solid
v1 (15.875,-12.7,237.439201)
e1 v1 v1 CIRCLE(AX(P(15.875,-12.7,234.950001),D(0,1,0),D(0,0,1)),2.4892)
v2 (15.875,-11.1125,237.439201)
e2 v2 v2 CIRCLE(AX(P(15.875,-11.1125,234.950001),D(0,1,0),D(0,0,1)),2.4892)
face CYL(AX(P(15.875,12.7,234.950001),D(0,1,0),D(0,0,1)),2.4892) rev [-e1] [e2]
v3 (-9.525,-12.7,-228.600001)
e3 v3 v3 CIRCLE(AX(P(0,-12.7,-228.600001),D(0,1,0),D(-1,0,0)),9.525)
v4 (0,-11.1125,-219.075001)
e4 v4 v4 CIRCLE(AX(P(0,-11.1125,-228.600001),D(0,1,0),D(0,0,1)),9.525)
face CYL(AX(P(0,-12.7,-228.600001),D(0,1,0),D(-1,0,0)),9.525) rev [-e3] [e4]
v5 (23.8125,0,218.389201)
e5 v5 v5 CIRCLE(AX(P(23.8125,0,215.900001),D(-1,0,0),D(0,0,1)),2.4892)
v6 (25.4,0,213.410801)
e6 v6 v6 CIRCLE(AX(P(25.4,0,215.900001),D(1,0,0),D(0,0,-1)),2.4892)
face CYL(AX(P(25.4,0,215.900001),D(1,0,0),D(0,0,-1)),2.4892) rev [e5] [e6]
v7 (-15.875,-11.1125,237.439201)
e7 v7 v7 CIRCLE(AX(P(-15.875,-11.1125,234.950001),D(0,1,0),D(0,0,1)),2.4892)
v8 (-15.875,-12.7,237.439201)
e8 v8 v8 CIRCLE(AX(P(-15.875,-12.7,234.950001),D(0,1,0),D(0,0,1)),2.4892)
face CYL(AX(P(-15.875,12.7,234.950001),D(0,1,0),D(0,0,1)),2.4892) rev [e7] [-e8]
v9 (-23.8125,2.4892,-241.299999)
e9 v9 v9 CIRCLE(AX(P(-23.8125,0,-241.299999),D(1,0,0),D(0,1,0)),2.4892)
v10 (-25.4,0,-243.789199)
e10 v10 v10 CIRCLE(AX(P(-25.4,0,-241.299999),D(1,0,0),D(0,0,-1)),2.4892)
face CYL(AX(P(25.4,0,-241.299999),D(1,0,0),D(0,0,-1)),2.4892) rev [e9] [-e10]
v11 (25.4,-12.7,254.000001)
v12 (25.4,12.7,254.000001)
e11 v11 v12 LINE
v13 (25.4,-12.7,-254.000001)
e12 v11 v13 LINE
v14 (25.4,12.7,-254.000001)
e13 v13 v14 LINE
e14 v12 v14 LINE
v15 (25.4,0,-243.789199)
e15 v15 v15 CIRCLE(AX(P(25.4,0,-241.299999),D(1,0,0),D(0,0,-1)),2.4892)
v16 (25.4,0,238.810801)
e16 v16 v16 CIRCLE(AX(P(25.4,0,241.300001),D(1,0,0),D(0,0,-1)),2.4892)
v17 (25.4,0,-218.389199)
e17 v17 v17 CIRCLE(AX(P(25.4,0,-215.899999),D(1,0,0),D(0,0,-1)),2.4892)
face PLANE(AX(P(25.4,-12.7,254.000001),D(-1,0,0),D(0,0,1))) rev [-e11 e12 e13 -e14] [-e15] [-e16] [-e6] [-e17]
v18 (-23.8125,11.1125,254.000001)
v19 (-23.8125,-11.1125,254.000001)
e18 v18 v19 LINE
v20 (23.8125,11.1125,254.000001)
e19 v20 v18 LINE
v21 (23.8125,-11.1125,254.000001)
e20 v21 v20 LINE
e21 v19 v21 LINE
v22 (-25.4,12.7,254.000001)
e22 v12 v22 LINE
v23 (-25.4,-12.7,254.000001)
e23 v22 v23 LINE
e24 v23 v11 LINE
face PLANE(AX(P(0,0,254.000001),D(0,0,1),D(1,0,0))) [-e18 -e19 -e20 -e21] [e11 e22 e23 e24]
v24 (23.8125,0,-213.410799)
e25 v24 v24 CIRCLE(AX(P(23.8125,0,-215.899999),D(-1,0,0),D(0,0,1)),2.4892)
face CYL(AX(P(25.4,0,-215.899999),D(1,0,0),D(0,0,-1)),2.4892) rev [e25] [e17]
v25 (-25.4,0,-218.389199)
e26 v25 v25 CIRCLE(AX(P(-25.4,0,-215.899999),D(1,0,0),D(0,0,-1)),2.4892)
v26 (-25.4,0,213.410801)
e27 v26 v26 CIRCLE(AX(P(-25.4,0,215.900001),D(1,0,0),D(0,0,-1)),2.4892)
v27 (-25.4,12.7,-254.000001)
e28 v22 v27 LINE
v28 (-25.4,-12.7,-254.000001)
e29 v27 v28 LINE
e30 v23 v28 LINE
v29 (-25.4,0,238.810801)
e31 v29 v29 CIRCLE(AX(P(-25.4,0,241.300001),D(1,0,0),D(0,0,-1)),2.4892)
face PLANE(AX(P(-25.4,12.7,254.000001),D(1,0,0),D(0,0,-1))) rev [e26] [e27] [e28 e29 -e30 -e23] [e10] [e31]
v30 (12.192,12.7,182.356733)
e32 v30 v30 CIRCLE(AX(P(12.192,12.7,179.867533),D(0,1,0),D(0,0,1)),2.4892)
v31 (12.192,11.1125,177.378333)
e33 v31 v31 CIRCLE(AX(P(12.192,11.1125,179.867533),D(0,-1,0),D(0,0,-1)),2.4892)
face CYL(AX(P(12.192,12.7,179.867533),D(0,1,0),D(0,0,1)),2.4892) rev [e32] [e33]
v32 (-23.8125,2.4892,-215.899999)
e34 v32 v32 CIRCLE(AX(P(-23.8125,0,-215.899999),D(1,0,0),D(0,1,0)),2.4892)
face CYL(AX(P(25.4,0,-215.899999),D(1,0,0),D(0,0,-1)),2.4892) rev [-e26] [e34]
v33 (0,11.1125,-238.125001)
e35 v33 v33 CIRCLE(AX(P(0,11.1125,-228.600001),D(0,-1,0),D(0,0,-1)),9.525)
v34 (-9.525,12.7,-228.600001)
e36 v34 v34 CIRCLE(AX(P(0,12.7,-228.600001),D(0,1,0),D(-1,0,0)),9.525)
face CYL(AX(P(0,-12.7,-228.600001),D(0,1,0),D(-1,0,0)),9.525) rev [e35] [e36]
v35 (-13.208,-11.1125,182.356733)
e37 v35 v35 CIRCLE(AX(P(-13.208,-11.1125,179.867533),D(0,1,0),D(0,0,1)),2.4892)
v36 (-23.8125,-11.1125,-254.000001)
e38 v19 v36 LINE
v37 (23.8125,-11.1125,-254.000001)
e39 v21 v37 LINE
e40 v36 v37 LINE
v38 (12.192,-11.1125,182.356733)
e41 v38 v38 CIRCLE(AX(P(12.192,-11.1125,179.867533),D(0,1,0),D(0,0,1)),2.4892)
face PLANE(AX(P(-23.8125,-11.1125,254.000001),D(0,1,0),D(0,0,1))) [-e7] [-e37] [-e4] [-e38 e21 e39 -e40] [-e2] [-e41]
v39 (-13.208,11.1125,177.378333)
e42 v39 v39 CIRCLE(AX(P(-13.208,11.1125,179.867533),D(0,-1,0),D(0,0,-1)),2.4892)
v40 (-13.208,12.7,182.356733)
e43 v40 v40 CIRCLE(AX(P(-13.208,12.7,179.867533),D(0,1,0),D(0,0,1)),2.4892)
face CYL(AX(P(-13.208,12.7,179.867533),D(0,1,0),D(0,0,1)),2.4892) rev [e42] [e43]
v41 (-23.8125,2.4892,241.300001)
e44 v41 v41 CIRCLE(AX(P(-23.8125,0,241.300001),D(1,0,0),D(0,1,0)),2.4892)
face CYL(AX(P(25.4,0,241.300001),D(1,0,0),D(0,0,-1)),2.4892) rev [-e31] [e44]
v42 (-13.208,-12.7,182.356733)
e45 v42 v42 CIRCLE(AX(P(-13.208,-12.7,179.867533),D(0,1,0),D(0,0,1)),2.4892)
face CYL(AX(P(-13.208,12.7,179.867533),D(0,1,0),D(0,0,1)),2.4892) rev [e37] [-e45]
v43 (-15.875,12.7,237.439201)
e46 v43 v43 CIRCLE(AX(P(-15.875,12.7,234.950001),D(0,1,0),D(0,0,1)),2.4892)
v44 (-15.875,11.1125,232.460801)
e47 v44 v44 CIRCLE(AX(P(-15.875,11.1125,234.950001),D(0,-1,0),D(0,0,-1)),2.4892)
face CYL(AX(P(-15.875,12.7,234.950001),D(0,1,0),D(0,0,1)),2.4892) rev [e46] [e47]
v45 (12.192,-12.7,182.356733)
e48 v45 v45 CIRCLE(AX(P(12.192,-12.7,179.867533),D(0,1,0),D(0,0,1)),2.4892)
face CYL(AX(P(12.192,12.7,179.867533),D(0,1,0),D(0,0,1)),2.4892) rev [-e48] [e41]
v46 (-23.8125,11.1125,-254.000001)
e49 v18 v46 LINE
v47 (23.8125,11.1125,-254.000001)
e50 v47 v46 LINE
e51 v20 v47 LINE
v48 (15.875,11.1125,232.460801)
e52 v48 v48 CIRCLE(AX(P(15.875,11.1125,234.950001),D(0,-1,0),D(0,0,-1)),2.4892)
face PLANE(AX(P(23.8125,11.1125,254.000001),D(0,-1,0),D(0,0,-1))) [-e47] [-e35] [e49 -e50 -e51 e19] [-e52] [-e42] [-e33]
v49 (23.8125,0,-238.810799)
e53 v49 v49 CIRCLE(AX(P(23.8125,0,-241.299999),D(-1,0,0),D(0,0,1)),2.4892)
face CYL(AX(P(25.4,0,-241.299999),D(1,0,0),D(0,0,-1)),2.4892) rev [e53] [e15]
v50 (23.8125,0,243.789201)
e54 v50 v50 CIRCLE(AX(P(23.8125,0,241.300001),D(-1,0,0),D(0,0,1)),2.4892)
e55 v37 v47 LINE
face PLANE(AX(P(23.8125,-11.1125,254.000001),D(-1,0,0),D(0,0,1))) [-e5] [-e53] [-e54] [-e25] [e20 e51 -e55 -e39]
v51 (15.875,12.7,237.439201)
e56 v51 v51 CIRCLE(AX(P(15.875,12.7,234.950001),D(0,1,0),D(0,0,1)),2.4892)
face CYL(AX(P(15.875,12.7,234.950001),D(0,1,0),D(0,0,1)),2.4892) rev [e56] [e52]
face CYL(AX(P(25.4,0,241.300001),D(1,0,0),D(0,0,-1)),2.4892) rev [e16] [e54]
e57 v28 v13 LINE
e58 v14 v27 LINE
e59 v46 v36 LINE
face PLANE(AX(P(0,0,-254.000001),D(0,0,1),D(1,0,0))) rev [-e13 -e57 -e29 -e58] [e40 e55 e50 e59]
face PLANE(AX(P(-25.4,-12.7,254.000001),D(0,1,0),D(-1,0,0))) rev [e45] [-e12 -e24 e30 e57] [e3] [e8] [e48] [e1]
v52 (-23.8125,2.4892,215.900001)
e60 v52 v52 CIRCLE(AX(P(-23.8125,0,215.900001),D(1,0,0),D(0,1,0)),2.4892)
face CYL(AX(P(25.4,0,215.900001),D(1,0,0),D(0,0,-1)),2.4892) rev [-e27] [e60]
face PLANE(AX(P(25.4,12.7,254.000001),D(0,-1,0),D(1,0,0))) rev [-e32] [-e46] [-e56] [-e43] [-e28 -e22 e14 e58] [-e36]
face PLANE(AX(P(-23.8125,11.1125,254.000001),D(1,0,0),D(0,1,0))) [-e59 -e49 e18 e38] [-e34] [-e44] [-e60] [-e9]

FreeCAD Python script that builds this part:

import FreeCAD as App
import Part
import Sketcher
Q = App.Units.Quantity

doc = App.newDocument("Part")
params = doc.addObject("Spreadsheet::Sheet", "Params")
for row, (alias, value) in enumerate([
    ("sketch1_width", "2 in"),
    ("sketch1_height", "1 in"),
    ("sketch1_width2", "1.875 in"),
    ("sketch1_height2", "0.875 in"),
    ("pad1_length", "10 in"),
    ("pad1_length2", "10 in"),
    ("sketch2_diameter", "0.196 in"),
    ("hole_diameter", "0.196 in"),
    ("sketch3_diameter", "0.196 in"),
    ("hole2_diameter", "0.196 in"),
    ("sketch4_diameter", "0.75 in"),
], start=1):
    params.set(f"A{row}", alias)
    params.set(f"B{row}", "=" + value)
    params.setAlias(f"B{row}", alias)

body = doc.addObject("PartDesign::Body", "Body")

sketch1 = body.newObject("Sketcher::SketchObject", "Sketch")
sketch1.AttachmentSupport = (doc.getObject("XY_Plane"), [""])
sketch1.MapMode = "FlatFace"
sketch1.addGeometry([
    Part.LineSegment(App.Vector(-25, 13, 0), App.Vector(-25, -13, 0)),
    Part.LineSegment(App.Vector(-25, -13, 0), App.Vector(25, -13, 0)),
    Part.LineSegment(App.Vector(25, -13, 0), App.Vector(25, 13, 0)),
    Part.LineSegment(App.Vector(25, 13, 0), App.Vector(-25, 13, 0)),
    Part.LineSegment(App.Vector(24, -11, 0), App.Vector(-24, -11, 0)),
    Part.LineSegment(App.Vector(-24, -11, 0), App.Vector(-24, 11, 0)),
    Part.LineSegment(App.Vector(-24, 11, 0), App.Vector(24, 11, 0)),
    Part.LineSegment(App.Vector(24, 11, 0), App.Vector(24, -11, 0)),
], False)
sketch1.addConstraint([
    Sketcher.Constraint("Coincident", 0, 2, 1, 1),
    Sketcher.Constraint("Coincident", 1, 2, 2, 1),
    Sketcher.Constraint("Coincident", 2, 2, 3, 1),
    Sketcher.Constraint("Coincident", 3, 2, 0, 1),
    Sketcher.Constraint("Coincident", 4, 2, 5, 1),
    Sketcher.Constraint("Coincident", 5, 2, 6, 1),
    Sketcher.Constraint("Coincident", 6, 2, 7, 1),
    Sketcher.Constraint("Coincident", 7, 2, 4, 1),
    Sketcher.Constraint("Vertical", 0),
    Sketcher.Constraint("Horizontal", 1),
    Sketcher.Constraint("Vertical", 2),
    Sketcher.Constraint("Horizontal", 3),
    Sketcher.Constraint("Horizontal", 4),
    Sketcher.Constraint("Vertical", 5),
    Sketcher.Constraint("Horizontal", 6),
    Sketcher.Constraint("Vertical", 7),
    Sketcher.Constraint("Symmetric", 0, 2, 2, 2, -1, 1),
    Sketcher.Constraint("Symmetric", 4, 2, 6, 2, -1, 1),
    Sketcher.Constraint("DistanceX", 1, 1, 1, 2, Q("2 in")),
    Sketcher.Constraint("DistanceY", 0, 2, 0, 1, Q("1 in")),
    Sketcher.Constraint("DistanceX", 4, 2, 4, 1, Q("1.875 in")),
    Sketcher.Constraint("DistanceY", 5, 1, 5, 2, Q("0.875 in")),
])
sketch1.setExpression("Constraints[18]", "Params.sketch1_width")
sketch1.setExpression("Constraints[19]", "Params.sketch1_height")
sketch1.setExpression("Constraints[20]", "Params.sketch1_width2")
sketch1.setExpression("Constraints[21]", "Params.sketch1_height2")
pad1 = body.newObject("PartDesign::Pad", "Pad")
pad1.Profile = sketch1
pad1.Type = "TwoLengths"
pad1.setExpression("Length", "Params.pad1_length")
pad1.setExpression("Length2", "Params.pad1_length2")

sketch2 = body.newObject("Sketcher::SketchObject", "Sketch001")
sketch2.AttachmentSupport = (doc.getObject("YZ_Plane"), [""])
sketch2.MapMode = "FlatFace"
sketch2.AttachmentOffset = App.Placement(App.Vector(0, 0, 1 * 25.4), App.Rotation())
sketch2.addGeometry([
    Part.Circle(App.Vector(0, 241.3, 0), App.Vector(0, 0, 1), 2.5),
    Part.Circle(App.Vector(0, 215.9, 0), App.Vector(0, 0, 1), 2.5),
    Part.Circle(App.Vector(0, -215.9, 0), App.Vector(0, 0, 1), 2.5),
    Part.Circle(App.Vector(0, -241.3, 0), App.Vector(0, 0, 1), 2.5),
], False)
sketch2.addConstraint([
    Sketcher.Constraint("Equal", 0, 1),
    Sketcher.Constraint("Equal", 1, 2),
    Sketcher.Constraint("Equal", 2, 3),
    Sketcher.Constraint("Symmetric", 1, 3, 2, 3, -1, 1),
    Sketcher.Constraint("Symmetric", 0, 3, 3, 3, -1, 1),
    Sketcher.Constraint("PointOnObject", 0, 3, -2),
    Sketcher.Constraint("PointOnObject", 1, 3, -2),
    Sketcher.Constraint("Diameter", 0, Q("0.196 in")),
    Sketcher.Constraint("DistanceY", 1, 3, 0, 3, Q("1 in")),
    Sketcher.Constraint("DistanceY", 2, 3, 1, 3, Q("17 in")),
])
sketch2.setExpression("Constraints[7]", "Params.sketch2_diameter")
doc.recompute()
hole = body.newObject("PartDesign::Hole", "Hole")
hole.Profile = sketch2
hole.ThreadType = "None"
hole.setExpression("Diameter", "Params.hole_diameter")
hole.DepthType = "ThroughAll"

sketch3 = body.newObject("Sketcher::SketchObject", "Sketch002")
sketch3.AttachmentSupport = (doc.getObject("XZ_Plane"), [""])
sketch3.MapMode = "FlatFace"
sketch3.AttachmentOffset = App.Placement(App.Vector(0, 0, -0.5 * 25.4), App.Rotation())
sketch3.addGeometry([
    Part.Circle(App.Vector(-13.2, 179.9, 0), App.Vector(0, 0, 1), 2.5),
    Part.Circle(App.Vector(12.2, 179.9, 0), App.Vector(0, 0, 1), 2.5),
    Part.Circle(App.Vector(-15.9, 235, 0), App.Vector(0, 0, 1), 2.5),
    Part.Circle(App.Vector(15.9, 235, 0), App.Vector(0, 0, 1), 2.5),
], False)
sketch3.addConstraint([
    Sketcher.Constraint("Equal", 0, 1),
    Sketcher.Constraint("Equal", 1, 2),
    Sketcher.Constraint("Equal", 2, 3),
    Sketcher.Constraint("Symmetric", 2, 3, 3, 3, -2),
    Sketcher.Constraint("Horizontal", 0, 3, 1, 3),
    Sketcher.Constraint("Diameter", 0, Q("0.196 in")),
    Sketcher.Constraint("DistanceX", 0, 3, 1, 3, Q("1 in")),
    Sketcher.Constraint("DistanceX", 0, 3, -1, 1, Q("0.52 in")),
    Sketcher.Constraint("DistanceY", -1, 1, 2, 3, Q("9.25 in")),
    Sketcher.Constraint("DistanceX", 2, 3, 3, 3, Q("1.25 in")),
    Sketcher.Constraint("DistanceY", -1, 1, 0, 3, 179.867533),
])
sketch3.setExpression("Constraints[5]", "Params.sketch3_diameter")
doc.recompute()
hole2 = body.newObject("PartDesign::Hole", "Hole001")
hole2.Profile = sketch3
hole2.ThreadType = "None"
hole2.setExpression("Diameter", "Params.hole2_diameter")
hole2.DepthType = "ThroughAll"
hole2.Reversed = True

sketch4 = body.newObject("Sketcher::SketchObject", "Sketch003")
sketch4.AttachmentSupport = (doc.getObject("XZ_Plane"), [""])
sketch4.MapMode = "FlatFace"
sketch4.AttachmentOffset = App.Placement(App.Vector(0, 0, -0.5 * 25.4), App.Rotation())
sketch4.addGeometry(Part.Circle(App.Vector(0, -229, 0), App.Vector(0, 0, 1), 10), False)
sketch4.addConstraint([
    Sketcher.Constraint("PointOnObject", 0, 3, -2),
    Sketcher.Constraint("Diameter", 0, Q("0.75 in")),
    Sketcher.Constraint("DistanceY", 0, 3, -1, 1, Q("9 in")),
])
sketch4.setExpression("Constraints[1]", "Params.sketch4_diameter")
pocket1 = body.newObject("PartDesign::Pocket", "Pocket")
pocket1.Profile = sketch4
pocket1.Type = "ThroughAll"
pocket1.Reversed = True

doc.recompute()
